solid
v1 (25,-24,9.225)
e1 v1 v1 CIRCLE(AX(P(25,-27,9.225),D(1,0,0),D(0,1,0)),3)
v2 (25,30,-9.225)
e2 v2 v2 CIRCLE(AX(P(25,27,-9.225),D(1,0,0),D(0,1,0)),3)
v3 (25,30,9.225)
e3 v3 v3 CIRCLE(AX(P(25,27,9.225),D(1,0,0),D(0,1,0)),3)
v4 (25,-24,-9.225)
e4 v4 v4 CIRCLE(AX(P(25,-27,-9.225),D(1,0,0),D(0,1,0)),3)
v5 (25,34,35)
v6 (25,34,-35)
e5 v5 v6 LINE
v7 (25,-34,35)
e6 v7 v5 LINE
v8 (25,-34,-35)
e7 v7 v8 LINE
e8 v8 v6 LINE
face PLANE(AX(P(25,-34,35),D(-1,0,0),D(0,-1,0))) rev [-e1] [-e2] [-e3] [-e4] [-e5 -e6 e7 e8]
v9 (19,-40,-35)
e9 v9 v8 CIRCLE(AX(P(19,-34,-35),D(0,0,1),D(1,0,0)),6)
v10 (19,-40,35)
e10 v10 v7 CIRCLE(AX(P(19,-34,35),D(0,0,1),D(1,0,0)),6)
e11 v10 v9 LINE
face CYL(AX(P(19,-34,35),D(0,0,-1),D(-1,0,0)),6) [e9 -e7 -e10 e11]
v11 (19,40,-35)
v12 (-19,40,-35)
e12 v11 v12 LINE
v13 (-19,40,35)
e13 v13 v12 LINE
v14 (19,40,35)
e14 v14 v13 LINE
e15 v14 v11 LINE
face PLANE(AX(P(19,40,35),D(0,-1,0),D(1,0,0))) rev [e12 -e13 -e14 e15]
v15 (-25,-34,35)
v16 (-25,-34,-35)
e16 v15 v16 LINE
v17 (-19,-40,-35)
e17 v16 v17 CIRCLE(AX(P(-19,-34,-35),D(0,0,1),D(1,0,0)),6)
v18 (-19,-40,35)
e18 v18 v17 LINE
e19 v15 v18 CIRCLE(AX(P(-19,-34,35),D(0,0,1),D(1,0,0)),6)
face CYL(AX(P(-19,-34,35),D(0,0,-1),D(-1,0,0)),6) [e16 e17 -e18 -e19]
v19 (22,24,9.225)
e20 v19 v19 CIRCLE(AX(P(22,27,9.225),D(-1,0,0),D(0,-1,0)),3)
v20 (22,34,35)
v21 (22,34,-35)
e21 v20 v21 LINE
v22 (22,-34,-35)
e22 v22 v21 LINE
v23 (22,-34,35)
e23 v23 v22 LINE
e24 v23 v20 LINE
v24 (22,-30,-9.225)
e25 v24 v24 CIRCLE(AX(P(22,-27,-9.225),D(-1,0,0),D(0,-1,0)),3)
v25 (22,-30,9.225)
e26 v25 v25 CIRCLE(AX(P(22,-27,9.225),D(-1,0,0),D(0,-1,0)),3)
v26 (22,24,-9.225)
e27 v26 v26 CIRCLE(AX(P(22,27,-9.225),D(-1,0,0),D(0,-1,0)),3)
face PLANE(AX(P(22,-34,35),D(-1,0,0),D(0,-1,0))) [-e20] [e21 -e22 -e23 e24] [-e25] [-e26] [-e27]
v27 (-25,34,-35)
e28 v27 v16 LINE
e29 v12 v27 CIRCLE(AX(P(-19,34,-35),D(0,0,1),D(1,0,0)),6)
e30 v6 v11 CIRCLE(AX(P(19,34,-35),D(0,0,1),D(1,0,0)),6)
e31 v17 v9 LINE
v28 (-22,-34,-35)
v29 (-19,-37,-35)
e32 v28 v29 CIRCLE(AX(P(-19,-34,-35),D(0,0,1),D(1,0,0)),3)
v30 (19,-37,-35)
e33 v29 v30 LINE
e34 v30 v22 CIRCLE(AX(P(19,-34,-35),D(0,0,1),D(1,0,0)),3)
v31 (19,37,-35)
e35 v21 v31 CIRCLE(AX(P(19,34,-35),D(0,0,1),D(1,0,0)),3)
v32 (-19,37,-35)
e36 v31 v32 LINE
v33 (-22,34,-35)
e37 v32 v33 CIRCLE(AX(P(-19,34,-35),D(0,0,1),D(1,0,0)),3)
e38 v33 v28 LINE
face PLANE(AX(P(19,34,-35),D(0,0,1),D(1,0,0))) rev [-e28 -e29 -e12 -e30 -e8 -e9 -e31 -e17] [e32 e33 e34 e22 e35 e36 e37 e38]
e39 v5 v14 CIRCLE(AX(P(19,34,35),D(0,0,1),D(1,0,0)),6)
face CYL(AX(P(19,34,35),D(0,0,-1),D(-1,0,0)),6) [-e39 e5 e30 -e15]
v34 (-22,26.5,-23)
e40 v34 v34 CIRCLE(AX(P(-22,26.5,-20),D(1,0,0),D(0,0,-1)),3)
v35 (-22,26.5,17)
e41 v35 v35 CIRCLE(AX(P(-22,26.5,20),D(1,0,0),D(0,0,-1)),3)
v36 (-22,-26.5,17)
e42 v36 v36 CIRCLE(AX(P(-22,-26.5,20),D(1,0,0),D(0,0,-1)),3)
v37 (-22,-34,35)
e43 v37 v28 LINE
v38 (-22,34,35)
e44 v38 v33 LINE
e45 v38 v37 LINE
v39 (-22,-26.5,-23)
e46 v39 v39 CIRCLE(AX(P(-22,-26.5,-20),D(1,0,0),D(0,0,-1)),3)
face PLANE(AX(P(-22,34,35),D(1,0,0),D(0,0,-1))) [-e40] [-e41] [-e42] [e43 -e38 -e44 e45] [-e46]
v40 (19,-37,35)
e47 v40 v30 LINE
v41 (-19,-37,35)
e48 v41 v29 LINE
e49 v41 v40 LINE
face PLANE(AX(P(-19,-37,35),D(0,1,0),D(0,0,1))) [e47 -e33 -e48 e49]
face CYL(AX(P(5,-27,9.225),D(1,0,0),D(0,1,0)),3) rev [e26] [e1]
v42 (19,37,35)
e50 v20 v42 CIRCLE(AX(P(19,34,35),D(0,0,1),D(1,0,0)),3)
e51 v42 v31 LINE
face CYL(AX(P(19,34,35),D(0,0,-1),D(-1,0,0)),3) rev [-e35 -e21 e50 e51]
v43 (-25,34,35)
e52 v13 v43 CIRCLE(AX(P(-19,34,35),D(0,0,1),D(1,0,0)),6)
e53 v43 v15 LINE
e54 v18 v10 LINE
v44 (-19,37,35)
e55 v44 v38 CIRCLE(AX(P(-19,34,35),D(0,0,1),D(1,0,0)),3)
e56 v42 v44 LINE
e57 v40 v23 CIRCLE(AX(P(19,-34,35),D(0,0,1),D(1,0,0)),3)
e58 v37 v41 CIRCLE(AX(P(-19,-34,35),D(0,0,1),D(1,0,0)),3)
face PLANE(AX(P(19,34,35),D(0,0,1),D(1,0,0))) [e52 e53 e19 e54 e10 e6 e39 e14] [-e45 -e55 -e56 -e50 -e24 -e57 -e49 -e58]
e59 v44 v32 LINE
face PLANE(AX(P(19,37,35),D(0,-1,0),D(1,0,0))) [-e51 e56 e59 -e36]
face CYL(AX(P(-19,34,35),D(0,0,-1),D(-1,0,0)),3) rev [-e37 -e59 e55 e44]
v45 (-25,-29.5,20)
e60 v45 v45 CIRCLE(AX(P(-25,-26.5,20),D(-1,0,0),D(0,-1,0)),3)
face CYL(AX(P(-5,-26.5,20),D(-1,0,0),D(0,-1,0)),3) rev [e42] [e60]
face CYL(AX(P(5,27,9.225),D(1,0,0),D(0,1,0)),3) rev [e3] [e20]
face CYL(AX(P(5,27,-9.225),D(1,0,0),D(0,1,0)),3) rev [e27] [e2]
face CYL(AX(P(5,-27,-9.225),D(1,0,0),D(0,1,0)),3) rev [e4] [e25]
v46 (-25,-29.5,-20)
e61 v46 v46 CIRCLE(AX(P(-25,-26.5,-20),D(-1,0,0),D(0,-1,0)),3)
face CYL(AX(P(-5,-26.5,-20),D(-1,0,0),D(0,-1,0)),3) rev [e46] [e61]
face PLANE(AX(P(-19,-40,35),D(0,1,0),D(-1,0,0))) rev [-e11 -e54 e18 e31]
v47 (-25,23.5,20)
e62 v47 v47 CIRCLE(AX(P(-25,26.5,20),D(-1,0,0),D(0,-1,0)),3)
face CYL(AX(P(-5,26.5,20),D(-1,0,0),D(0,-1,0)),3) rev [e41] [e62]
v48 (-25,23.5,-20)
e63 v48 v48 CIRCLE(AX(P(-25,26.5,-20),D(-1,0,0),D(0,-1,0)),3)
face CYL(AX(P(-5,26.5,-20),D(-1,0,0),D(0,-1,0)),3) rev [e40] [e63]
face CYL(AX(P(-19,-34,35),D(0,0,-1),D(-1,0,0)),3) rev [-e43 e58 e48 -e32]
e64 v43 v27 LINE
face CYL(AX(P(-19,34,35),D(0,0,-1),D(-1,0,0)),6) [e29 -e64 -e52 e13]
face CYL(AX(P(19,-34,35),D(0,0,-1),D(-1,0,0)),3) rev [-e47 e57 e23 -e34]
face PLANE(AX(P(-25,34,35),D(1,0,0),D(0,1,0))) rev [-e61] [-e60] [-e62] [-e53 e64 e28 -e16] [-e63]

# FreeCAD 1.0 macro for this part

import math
import FreeCAD as App
import Part
import Sketcher
Q = App.Units.Quantity

doc = App.newDocument("Part")
body = doc.addObject("PartDesign::Body", "Body")

# Sketch on XY plane
sketch1 = body.newObject("Sketcher::SketchObject", "Sketch")
sketch1.AttachmentSupport = (doc.getObject("XY_Plane"), [""])
sketch1.MapMode = "FlatFace"
sketch1.addGeometry([
    Part.LineSegment(App.Vector(19, 40, 0), App.Vector(-19, 40, 0)),  # 0
    Part.ArcOfCircle(Part.Circle(App.Vector(-19, 34, 0), App.Vector(0, 0, 1), 6), math.radians(90), math.radians(180)),  # 1
    Part.LineSegment(App.Vector(-25, 34, 0), App.Vector(-25, -34, 0)),  # 2
    Part.ArcOfCircle(Part.Circle(App.Vector(-19, -34, 0), App.Vector(0, 0, 1), 6), math.radians(180), math.radians(270)),  # 3
    Part.LineSegment(App.Vector(-19, -40, 0), App.Vector(19, -40, 0)),  # 4
    Part.ArcOfCircle(Part.Circle(App.Vector(19, -34, 0), App.Vector(0, 0, 1), 6), math.radians(-90), math.radians(0)),  # 5
    Part.LineSegment(App.Vector(25, -34, 0), App.Vector(25, 34, 0)),  # 6
    Part.ArcOfCircle(Part.Circle(App.Vector(19, 34, 0), App.Vector(0, 0, 1), 6), math.radians(0), math.radians(90)),  # 7
    Part.LineSegment(App.Vector(22, 34, 0), App.Vector(22, -34, 0)),  # 8
    Part.ArcOfCircle(Part.Circle(App.Vector(19, -34, 0), App.Vector(0, 0, 1), 3), math.radians(-90), math.radians(0)),  # 9
    Part.LineSegment(App.Vector(19, -37, 0), App.Vector(-19, -37, 0)),  # 10
    Part.ArcOfCircle(Part.Circle(App.Vector(-19, -34, 0), App.Vector(0, 0, 1), 3), math.radians(180), math.radians(270)),  # 11
    Part.LineSegment(App.Vector(-22, -34, 0), App.Vector(-22, 34, 0)),  # 12
    Part.ArcOfCircle(Part.Circle(App.Vector(-19, 34, 0), App.Vector(0, 0, 1), 3), math.radians(90), math.radians(180)),  # 13
    Part.LineSegment(App.Vector(-19, 37, 0), App.Vector(19, 37, 0)),  # 14
    Part.ArcOfCircle(Part.Circle(App.Vector(19, 34, 0), App.Vector(0, 0, 1), 3), math.radians(0), math.radians(90)),  # 15
], False)
sketch1.addConstraint([
    Sketcher.Constraint("Tangent", 0, 2, 1, 1),
    Sketcher.Constraint("Tangent", 1, 2, 2, 1),
    Sketcher.Constraint("Tangent", 2, 2, 3, 1),
    Sketcher.Constraint("Tangent", 3, 2, 4, 1),
    Sketcher.Constraint("Tangent", 4, 2, 5, 1),
    Sketcher.Constraint("Tangent", 5, 2, 6, 1),
    Sketcher.Constraint("Tangent", 6, 2, 7, 1),
    Sketcher.Constraint("Tangent", 7, 2, 0, 1),
    Sketcher.Constraint("Tangent", 8, 2, 9, 2),
    Sketcher.Constraint("Tangent", 9, 1, 10, 1),
    Sketcher.Constraint("Tangent", 10, 2, 11, 2),
    Sketcher.Constraint("Tangent", 11, 1, 12, 1),
    Sketcher.Constraint("Tangent", 12, 2, 13, 2),
    Sketcher.Constraint("Tangent", 13, 1, 14, 1),
    Sketcher.Constraint("Tangent", 14, 2, 15, 2),
    Sketcher.Constraint("Tangent", 15, 1, 8, 1),
    Sketcher.Constraint("Horizontal", 0),
    Sketcher.Constraint("Vertical", 2),
    Sketcher.Constraint("Horizontal", 4),
    Sketcher.Constraint("Vertical", 6),
    Sketcher.Constraint("Vertical", 8),
    Sketcher.Constraint("Horizontal", 10),
    Sketcher.Constraint("Vertical", 12),
    Sketcher.Constraint("Horizontal", 14),
    Sketcher.Constraint("Coincident", 9, 3, 5, 3),
    Sketcher.Constraint("Coincident", 11, 3, 3, 3),
    Sketcher.Constraint("Coincident", 13, 3, 1, 3),
    Sketcher.Constraint("Equal", 1, 3),
    Sketcher.Constraint("Equal", 3, 5),
    Sketcher.Constraint("Equal", 5, 7),
    Sketcher.Constraint("Equal", 13, 15),
    Sketcher.Constraint("Symmetric", 1, 3, 5, 3, -1, 1),
    Sketcher.Constraint("Radius", 1, Q("6 mm")),
    Sketcher.Constraint("Radius", 9, Q("3 mm")),
    Sketcher.Constraint("DistanceX", 0, 2, 0, 1, Q("38 mm")),
    Sketcher.Constraint("DistanceY", 2, 2, 2, 1, Q("68 mm")),
])
pad1 = body.newObject("PartDesign::Pad", "Pad")
pad1.Profile = sketch1
pad1.Length = 70
pad1.Midplane = True

# Sketch on YZ plane
sketch2 = body.newObject("Sketcher::SketchObject", "Sketch001")
sketch2.AttachmentSupport = (doc.getObject("YZ_Plane"), [""])
sketch2.MapMode = "FlatFace"
sketch2.AttachmentOffset = App.Placement(App.Vector(0, 0, -25), App.Rotation())
sketch2.addGeometry([
    Part.Circle(App.Vector(26.5, -20, 0), App.Vector(0, 0, 1), 3),
    Part.Circle(App.Vector(26.5, 20, 0), App.Vector(0, 0, 1), 3),
    Part.Circle(App.Vector(-26.5, 20, 0), App.Vector(0, 0, 1), 3),
    Part.Circle(App.Vector(-26.5, -20, 0), App.Vector(0, 0, 1), 3),
], False)
sketch2.addConstraint([
    Sketcher.Constraint("Equal", 0, 1),
    Sketcher.Constraint("Equal", 1, 2),
    Sketcher.Constraint("Equal", 2, 3),
    Sketcher.Constraint("Symmetric", 0, 3, 2, 3, -1, 1),
    Sketcher.Constraint("Symmetric", 1, 3, 3, 3, -1, 1),
    Sketcher.Constraint("Symmetric", 1, 3, 2, 3, -2),
    Sketcher.Constraint("Diameter", 0, Q("6 mm")),
    Sketcher.Constraint("DistanceY", 0, 3, -1, 1, Q("20 mm")),
    Sketcher.Constraint("DistanceX", 2, 3, 1, 3, Q("53 mm")),
])
pocket1 = body.newObject("PartDesign::Pocket", "Pocket")
pocket1.Profile = sketch2
pocket1.Length = 20
pocket1.Reversed = True

# Sketch on YZ plane
sketch3 = body.newObject("Sketcher::SketchObject", "Sketch002")
sketch3.AttachmentSupport = (doc.getObject("YZ_Plane"), [""])
sketch3.MapMode = "FlatFace"
sketch3.AttachmentOffset = App.Placement(App.Vector(0, 0, 25), App.Rotation())
sketch3.addGeometry([
    Part.Circle(App.Vector(27, 9.2, 0), App.Vector(0, 0, 1), 3),
    Part.Circle(App.Vector(27, -9.2, 0), App.Vector(0, 0, 1), 3),
    Part.Circle(App.Vector(-27, -9.2, 0), App.Vector(0, 0, 1), 3),
    Part.Circle(App.Vector(-27, 9.2, 0), App.Vector(0, 0, 1), 3),
], False)
sketch3.addConstraint([
    Sketcher.Constraint("Equal", 0, 1),
    Sketcher.Constraint("Equal", 1, 2),
    Sketcher.Constraint("Equal", 2, 3),
    Sketcher.Constraint("Symmetric", 0, 3, 2, 3, -1, 1),
    Sketcher.Constraint("Symmetric", 1, 3, 3, 3, -1, 1),
    Sketcher.Constraint("Symmetric", 1, 3, 2, 3, -2),
    Sketcher.Constraint("Diameter", 0, Q("6 mm")),
    Sketcher.Constraint("DistanceX", -1, 1, 0, 3, Q("27 mm")),
    Sketcher.Constraint("DistanceY", 1, 3, 0, 3, Q("18.45 mm")),
])
pocket2 = body.newObject("PartDesign::Pocket", "Pocket001")
pocket2.Profile = sketch3
pocket2.Length = 20

doc.recompute()
